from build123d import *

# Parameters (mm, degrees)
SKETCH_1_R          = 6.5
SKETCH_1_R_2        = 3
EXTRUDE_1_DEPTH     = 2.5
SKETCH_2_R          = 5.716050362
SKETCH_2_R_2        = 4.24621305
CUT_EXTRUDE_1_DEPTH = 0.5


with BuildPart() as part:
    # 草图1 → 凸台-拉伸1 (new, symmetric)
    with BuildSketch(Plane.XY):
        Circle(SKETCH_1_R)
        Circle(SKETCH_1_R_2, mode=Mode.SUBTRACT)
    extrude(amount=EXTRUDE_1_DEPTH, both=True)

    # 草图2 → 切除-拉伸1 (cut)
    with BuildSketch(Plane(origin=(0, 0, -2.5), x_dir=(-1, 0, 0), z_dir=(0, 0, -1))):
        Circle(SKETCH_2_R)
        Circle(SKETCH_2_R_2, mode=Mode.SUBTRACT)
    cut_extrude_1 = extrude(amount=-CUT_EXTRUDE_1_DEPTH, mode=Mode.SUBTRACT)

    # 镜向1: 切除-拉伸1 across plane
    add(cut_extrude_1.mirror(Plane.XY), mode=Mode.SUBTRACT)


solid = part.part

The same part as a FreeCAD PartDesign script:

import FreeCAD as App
import Part
import Sketcher

V = App.Vector
Q = App.Units.Quantity

doc = App.newDocument("Part")
body = doc.addObject("PartDesign::Body", "Body")

sketch1 = body.newObject("Sketcher::SketchObject", "Sketch")
sketch1.AttachmentSupport = (doc.getObject("XY_Plane"), [""])
sketch1.MapMode = "FlatFace"
sketch1.addGeometry([
    Part.Circle(V(0, 0, 0), V(0, 0, 1), 6.5),
    Part.Circle(V(0, 0, 0), V(0, 0, 1), 3),
], False)
sketch1.addConstraint([
    Sketcher.Constraint("Coincident", 0, 3, -1, 1),
    Sketcher.Constraint("Coincident", 1, 3, -1, 1),
    Sketcher.Constraint("Diameter", 0, Q("13 mm")),
    Sketcher.Constraint("Diameter", 1, Q("6 mm")),
])
pad1 = body.newObject("PartDesign::Pad", "Pad")
pad1.Profile = sketch1
pad1.Length = 5
pad1.Midplane = True

sketch2 = body.newObject("Sketcher::SketchObject", "Sketch001")
sketch2.AttachmentSupport = (doc.getObject("XY_Plane"), [""])
sketch2.MapMode = "FlatFace"
sketch2.AttachmentOffset = App.Placement(V(0, 0, -2.5), App.Rotation())
sketch2.addGeometry([
    Part.Circle(V(0, 0, 0), V(0, 0, 1), 5.71605),
    Part.Circle(V(0, 0, 0), V(0, 0, 1), 4.246213),
], False)
sketch2.addConstraint([
    Sketcher.Constraint("Coincident", 0, 3, -1, 1),
    Sketcher.Constraint("Coincident", 1, 3, -1, 1),
    Sketcher.Constraint("Diameter", 0, Q("11.432101 mm")),
    Sketcher.Constraint("Diameter", 1, Q("8.492426 mm")),
])
pocket1 = body.newObject("PartDesign::Pocket", "Pocket")
pocket1.Profile = sketch2
pocket1.Length = 0.5
pocket1.Reversed = True
doc.recompute()

mirrored = body.newObject("PartDesign::Mirrored", "Mirrored")
mirrored.Originals = [pocket1]
mirrored.MirrorPlane = (doc.getObject("XY_Plane"), [""])
body.Tip = mirrored

doc.recompute()
